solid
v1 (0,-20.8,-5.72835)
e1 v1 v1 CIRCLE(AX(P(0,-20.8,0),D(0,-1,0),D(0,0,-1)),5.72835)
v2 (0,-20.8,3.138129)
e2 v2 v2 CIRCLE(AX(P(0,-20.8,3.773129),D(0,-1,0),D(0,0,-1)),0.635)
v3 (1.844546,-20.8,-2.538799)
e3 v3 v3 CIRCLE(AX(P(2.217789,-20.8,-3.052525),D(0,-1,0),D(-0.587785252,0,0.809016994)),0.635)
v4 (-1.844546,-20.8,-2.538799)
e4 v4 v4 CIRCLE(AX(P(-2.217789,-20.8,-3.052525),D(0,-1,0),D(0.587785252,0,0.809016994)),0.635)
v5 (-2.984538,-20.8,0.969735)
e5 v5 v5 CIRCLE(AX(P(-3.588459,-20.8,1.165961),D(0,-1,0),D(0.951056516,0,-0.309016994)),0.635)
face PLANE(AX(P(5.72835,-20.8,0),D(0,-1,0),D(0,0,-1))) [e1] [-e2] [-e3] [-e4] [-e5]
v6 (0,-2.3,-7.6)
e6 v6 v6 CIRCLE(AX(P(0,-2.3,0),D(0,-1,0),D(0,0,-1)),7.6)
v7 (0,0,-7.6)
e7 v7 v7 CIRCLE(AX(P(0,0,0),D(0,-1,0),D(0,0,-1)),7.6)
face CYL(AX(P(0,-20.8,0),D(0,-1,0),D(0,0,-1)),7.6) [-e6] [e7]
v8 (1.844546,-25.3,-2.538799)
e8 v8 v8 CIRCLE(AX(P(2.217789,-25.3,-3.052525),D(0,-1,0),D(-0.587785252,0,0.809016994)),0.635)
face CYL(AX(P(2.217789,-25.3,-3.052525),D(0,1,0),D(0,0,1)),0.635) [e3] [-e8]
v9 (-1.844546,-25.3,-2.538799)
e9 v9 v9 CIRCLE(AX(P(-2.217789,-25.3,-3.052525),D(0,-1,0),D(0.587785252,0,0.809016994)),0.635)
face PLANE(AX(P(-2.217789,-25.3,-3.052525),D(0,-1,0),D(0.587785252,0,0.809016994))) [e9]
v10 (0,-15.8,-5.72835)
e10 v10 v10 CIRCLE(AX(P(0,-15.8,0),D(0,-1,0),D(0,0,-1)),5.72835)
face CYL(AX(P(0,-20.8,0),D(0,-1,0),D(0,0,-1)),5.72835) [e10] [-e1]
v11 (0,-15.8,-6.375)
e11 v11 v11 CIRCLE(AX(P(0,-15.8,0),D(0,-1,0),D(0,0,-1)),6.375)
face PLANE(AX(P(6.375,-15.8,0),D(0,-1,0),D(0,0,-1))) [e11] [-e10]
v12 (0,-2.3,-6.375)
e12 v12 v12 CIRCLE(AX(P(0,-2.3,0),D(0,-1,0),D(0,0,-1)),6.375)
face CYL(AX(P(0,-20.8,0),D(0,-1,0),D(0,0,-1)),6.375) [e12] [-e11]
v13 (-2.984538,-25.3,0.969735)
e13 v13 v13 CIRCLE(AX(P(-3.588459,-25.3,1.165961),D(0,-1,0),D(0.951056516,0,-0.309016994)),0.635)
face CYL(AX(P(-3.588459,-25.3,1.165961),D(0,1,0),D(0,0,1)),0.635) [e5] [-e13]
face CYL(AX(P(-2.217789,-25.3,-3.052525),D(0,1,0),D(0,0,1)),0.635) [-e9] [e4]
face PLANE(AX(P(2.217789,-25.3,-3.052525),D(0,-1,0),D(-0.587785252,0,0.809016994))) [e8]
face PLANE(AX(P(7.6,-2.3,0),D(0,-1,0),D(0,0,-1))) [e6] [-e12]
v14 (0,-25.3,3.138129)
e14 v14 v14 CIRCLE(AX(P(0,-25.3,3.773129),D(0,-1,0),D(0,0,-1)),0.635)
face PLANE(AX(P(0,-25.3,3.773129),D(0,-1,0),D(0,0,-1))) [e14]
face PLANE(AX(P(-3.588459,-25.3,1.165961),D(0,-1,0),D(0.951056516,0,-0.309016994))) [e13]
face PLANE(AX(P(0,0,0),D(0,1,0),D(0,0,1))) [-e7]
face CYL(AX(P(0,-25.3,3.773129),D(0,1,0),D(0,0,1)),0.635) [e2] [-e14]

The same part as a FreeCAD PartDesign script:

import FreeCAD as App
import Part
import Sketcher
Q = App.Units.Quantity


def add_polygon(sketch, points):
    """Adds a closed chain of lines whose ends are joined by coincident constraints."""
    first, n = sketch.GeometryCount, len(points)
    for a, b in zip(points, points[1:] + points[:1]):
        sketch.addGeometry(Part.LineSegment(App.Vector(*a, 0), App.Vector(*b, 0)), False)
    for i in range(n):
        sketch.addConstraint(Sketcher.Constraint("Coincident", first + i, 2, first + (i + 1) % n, 1))

doc = App.newDocument("Part")
body = doc.addObject("PartDesign::Body", "Body")

# Sketch on XY plane
sketch1 = body.newObject("Sketcher::SketchObject", "Sketch")
sketch1.AttachmentSupport = (doc.getObject("XY_Plane"), [""])
sketch1.MapMode = "FlatFace"
add_polygon(sketch1, [(7.6, 0), (0, 0), (0, -20.8), (5.7, -20.8), (5.7, -15.8), (6.4, -15.8), (6.4, -2.3), (7.6, -2.3)])  # lines 0-7
sketch1.addConstraint(Sketcher.Constraint("Horizontal", 0))
sketch1.addConstraint(Sketcher.Constraint("Vertical", 1))
sketch1.addConstraint(Sketcher.Constraint("Horizontal", 2))
sketch1.addConstraint(Sketcher.Constraint("Vertical", 3))
sketch1.addConstraint(Sketcher.Constraint("Horizontal", 4))
sketch1.addConstraint(Sketcher.Constraint("Vertical", 5))
sketch1.addConstraint(Sketcher.Constraint("Horizontal", 6))
sketch1.addConstraint(Sketcher.Constraint("Vertical", 7))
sketch1.addConstraint(Sketcher.Constraint("Coincident", 0, 2, -1, 1))
sketch1.addConstraint(Sketcher.Constraint("DistanceY", 3, 1, 3, 2, Q("5 mm")))
sketch1.addConstraint(Sketcher.Constraint("DistanceX", 0, 2, 0, 1, Q("7.6 mm")))
sketch1.addConstraint(Sketcher.Constraint("DistanceY", 1, 2, 1, 1, Q("20.8 mm")))
sketch1.addConstraint(Sketcher.Constraint("DistanceY", 5, 1, 5, 2, Q("13.5 mm")))
sketch1.addConstraint(Sketcher.Constraint("DistanceX", 6, 1, 6, 2, Q("1.225 mm")))
sketch1.addConstraint(Sketcher.Constraint("DistanceX", 2, 1, 2, 2, Q("5.72835 mm")))
revolution = body.newObject("PartDesign::Revolution", "Revolution")
revolution.Profile = sketch1
revolution.ReferenceAxis = (sketch1, ["V_Axis"])
revolution.Angle = 360

# Sketch on XZ plane
sketch2 = body.newObject("Sketcher::SketchObject", "Sketch001")
sketch2.AttachmentSupport = (doc.getObject("XZ_Plane"), [""])
sketch2.MapMode = "FlatFace"
sketch2.AttachmentOffset = App.Placement(App.Vector(0, 0, 20.8), App.Rotation())
sketch2.addGeometry(Part.Circle(App.Vector(0, 3.8, 0), App.Vector(0, 0, 1), 0.6), False)
sketch2.addConstraint(Sketcher.Constraint("PointOnObject", 0, 3, -2))
sketch2.addConstraint(Sketcher.Constraint("Diameter", 0, Q("1.27 mm")))
sketch2.addConstraint(Sketcher.Constraint("DistanceY", -1, 1, 0, 3, Q("3.773129 mm")))
pad1 = body.newObject("PartDesign::Pad", "Pad")
pad1.Profile = sketch2
pad1.Length = 4.5
doc.recompute()

polarpattern = body.newObject("PartDesign::PolarPattern", "PolarPattern")
polarpattern.Originals = [pad1]
polarpattern.Axis = (doc.getObject("Y_Axis"), [""])
polarpattern.Angle = 216
polarpattern.Occurrences = 4
polarpattern.Reversed = True
body.Tip = polarpattern

doc.recompute()
